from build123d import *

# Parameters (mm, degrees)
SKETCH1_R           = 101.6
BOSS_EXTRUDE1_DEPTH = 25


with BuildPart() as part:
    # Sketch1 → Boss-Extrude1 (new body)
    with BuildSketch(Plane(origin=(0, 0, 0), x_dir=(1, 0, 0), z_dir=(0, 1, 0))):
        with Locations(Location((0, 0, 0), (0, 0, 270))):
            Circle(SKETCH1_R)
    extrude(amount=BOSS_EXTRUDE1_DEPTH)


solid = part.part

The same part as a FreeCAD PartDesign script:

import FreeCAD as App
import Part
import Sketcher
from FreeCAD import Vector

doc = App.newDocument("Part")
body = doc.addObject("PartDesign::Body", "Body")

sketch1 = doc.addObject("Sketcher::SketchObject", "Sketch")
body.addObject(sketch1)
sketch1.AttachmentSupport = (doc.XZ_Plane, [""])
sketch1.MapMode = "FlatFace"
sketch1.addGeometry(Part.Circle(Vector(0, 0, 0), Vector(0, 0, 1), 102), False)
sketch1.addConstraint([
    Sketcher.Constraint("Coincident", 0, 3, -1, 1),
    Sketcher.Constraint("Diameter", 0, 203.2),
])
pad1 = doc.addObject("PartDesign::Pad", "Pad")
body.addObject(pad1)
pad1.Profile = sketch1
pad1.Length = 25
pad1.Reversed = True

doc.recompute()
